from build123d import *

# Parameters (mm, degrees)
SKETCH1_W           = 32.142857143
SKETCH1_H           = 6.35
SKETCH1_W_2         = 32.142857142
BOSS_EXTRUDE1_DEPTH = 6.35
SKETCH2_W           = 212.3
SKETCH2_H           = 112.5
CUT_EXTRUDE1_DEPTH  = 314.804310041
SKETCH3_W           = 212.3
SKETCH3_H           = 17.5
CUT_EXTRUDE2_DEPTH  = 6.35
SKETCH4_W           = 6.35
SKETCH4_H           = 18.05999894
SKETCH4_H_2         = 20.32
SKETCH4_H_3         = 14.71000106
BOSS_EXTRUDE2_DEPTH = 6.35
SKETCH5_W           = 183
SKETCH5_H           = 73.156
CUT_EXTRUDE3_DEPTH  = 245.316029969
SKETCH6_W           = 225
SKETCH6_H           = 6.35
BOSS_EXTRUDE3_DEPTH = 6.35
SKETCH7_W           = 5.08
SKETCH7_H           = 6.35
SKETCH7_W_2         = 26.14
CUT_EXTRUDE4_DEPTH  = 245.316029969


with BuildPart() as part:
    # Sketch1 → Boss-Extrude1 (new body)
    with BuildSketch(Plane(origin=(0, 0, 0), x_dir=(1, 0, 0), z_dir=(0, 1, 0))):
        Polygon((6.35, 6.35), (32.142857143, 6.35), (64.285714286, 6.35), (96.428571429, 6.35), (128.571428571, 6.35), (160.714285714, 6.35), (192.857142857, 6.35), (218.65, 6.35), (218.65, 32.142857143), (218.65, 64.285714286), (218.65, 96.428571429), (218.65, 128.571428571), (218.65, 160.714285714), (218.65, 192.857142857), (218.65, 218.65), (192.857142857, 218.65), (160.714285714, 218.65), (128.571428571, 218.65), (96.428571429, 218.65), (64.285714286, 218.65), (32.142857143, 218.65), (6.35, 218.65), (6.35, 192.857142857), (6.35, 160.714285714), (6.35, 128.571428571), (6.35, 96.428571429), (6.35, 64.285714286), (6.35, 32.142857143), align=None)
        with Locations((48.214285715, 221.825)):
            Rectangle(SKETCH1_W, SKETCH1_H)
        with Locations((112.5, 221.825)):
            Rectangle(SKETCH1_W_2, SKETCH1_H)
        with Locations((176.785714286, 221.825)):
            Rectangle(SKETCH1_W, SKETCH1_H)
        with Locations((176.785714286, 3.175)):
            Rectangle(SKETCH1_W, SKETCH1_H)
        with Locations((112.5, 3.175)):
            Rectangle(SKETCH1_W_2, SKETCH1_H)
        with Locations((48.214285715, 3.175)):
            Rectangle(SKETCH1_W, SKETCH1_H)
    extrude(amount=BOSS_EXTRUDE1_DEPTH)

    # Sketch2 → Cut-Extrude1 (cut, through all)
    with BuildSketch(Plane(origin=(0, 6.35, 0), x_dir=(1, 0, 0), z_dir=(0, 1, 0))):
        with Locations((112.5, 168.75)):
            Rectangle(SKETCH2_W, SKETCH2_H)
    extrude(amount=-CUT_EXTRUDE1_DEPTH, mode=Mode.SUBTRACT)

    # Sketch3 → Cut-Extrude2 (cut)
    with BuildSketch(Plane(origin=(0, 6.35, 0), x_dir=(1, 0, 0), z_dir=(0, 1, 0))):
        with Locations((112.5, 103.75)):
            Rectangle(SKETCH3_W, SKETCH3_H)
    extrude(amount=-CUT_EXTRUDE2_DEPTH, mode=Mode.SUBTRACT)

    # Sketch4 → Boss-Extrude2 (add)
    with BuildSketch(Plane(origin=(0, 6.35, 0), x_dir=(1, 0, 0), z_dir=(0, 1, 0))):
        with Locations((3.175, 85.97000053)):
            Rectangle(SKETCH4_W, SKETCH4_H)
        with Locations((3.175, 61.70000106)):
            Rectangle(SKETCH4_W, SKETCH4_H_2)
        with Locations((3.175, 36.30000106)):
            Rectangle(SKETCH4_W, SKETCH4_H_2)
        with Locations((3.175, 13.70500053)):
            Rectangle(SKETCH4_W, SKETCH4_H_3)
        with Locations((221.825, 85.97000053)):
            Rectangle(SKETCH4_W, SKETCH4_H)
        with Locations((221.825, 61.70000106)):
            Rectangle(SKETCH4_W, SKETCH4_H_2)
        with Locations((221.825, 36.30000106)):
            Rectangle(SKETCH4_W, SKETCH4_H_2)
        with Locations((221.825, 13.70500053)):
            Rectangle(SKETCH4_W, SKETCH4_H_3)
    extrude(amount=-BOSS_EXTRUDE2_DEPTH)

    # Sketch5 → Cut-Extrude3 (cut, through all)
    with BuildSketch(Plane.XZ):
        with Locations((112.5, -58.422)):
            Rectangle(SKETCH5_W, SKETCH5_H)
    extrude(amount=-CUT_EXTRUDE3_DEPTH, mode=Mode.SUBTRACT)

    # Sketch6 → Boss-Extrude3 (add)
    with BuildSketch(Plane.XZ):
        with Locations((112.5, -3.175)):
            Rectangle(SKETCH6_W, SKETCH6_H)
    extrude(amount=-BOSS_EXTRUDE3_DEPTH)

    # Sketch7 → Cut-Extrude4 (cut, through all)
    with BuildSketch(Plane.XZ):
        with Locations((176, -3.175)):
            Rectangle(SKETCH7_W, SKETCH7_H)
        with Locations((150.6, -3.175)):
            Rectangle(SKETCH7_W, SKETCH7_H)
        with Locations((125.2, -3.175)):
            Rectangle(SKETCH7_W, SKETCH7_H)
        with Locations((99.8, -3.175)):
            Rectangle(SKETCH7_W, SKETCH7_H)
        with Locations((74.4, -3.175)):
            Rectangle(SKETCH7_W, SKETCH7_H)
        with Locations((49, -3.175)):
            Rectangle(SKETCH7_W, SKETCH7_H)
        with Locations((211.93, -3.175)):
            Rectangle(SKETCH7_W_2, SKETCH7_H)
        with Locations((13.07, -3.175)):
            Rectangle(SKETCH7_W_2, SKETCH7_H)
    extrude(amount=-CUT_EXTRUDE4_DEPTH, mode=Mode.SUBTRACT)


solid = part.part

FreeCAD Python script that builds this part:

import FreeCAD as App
import Part
import Sketcher
from FreeCAD import Vector


def add_polygon(sketch, points):
    """Adds a closed chain of lines whose ends are joined by coincident constraints."""
    first, n = sketch.GeometryCount, len(points)
    for a, b in zip(points, points[1:] + points[:1]):
        sketch.addGeometry(Part.LineSegment(App.Vector(*a, 0), App.Vector(*b, 0)), False)
    for i in range(n):
        sketch.addConstraint(Sketcher.Constraint("Coincident", first + i, 2, first + (i + 1) % n, 1))

doc = App.newDocument("Part")
body = doc.addObject("PartDesign::Body", "Body")

# Sketch on XZ plane
sketch1 = doc.addObject("Sketcher::SketchObject", "Sketch")
body.addObject(sketch1)
sketch1.AttachmentSupport = (doc.XZ_Plane, [""])
sketch1.MapMode = "FlatFace"
add_polygon(sketch1, [(6, -6), (32, -6), (32, 0), (64, 0), (64, -6), (96, -6), (96, 0), (129, 0), (129, -6), (161, -6), (161, 0), (193, 0), (193, -6), (219, -6), (219, -219), (193, -219), (193, -225), (161, -225), (161, -219), (129, -219), (129, -225), (96, -225), (96, -219), (64, -219), (64, -225), (32, -225), (32, -219), (6, -219)])  # lines 0-27
sketch1.addConstraint([
    Sketcher.Constraint("Horizontal", 0),
    Sketcher.Constraint("Vertical", 1),
    Sketcher.Constraint("Horizontal", 2),
    Sketcher.Constraint("Vertical", 3),
    Sketcher.Constraint("Horizontal", 4),
    Sketcher.Constraint("Vertical", 5),
    Sketcher.Constraint("Horizontal", 6),
    Sketcher.Constraint("Vertical", 7),
    Sketcher.Constraint("Horizontal", 8),
    Sketcher.Constraint("Vertical", 9),
    Sketcher.Constraint("Horizontal", 10),
    Sketcher.Constraint("Vertical", 11),
    Sketcher.Constraint("Horizontal", 12),
    Sketcher.Constraint("Vertical", 13),
    Sketcher.Constraint("Horizontal", 14),
    Sketcher.Constraint("Vertical", 15),
    Sketcher.Constraint("Horizontal", 16),
    Sketcher.Constraint("Vertical", 17),
    Sketcher.Constraint("Horizontal", 18),
    Sketcher.Constraint("Vertical", 19),
    Sketcher.Constraint("Horizontal", 20),
    Sketcher.Constraint("Vertical", 21),
    Sketcher.Constraint("Horizontal", 22),
    Sketcher.Constraint("Vertical", 23),
    Sketcher.Constraint("Horizontal", 24),
    Sketcher.Constraint("Vertical", 25),
    Sketcher.Constraint("Horizontal", 26),
    Sketcher.Constraint("Vertical", 27),
    Sketcher.Constraint("PointOnObject", 1, 2, -1),
    Sketcher.Constraint("PointOnObject", 5, 2, -1),
    Sketcher.Constraint("PointOnObject", 9, 2, -1),
    Sketcher.Constraint("Horizontal", 0, 2, 3, 2),
    Sketcher.Constraint("Horizontal", 4, 2, 7, 2),
    Sketcher.Constraint("Horizontal", 8, 2, 11, 2),
    Sketcher.Constraint("Horizontal", 14, 2, 17, 2),
    Sketcher.Constraint("Horizontal", 16, 2, 19, 2),
    Sketcher.Constraint("Horizontal", 18, 2, 21, 2),
    Sketcher.Constraint("Horizontal", 20, 2, 23, 2),
    Sketcher.Constraint("Horizontal", 22, 2, 25, 2),
    Sketcher.Constraint("Vertical", 11, 2, 14, 2),
    Sketcher.Constraint("Vertical", 9, 2, 16, 2),
    Sketcher.Constraint("Vertical", 7, 2, 18, 2),
    Sketcher.Constraint("Vertical", 5, 2, 20, 2),
    Sketcher.Constraint("Vertical", 3, 2, 22, 2),
    Sketcher.Constraint("Vertical", 1, 2, 24, 2),
    Sketcher.Constraint("Equal", 2, 4),
    Sketcher.Constraint("Equal", 4, 6),
    Sketcher.Constraint("Equal", 6, 8),
    Sketcher.Constraint("Equal", 8, 10),
    Sketcher.Constraint("Equal", 0, 12),
    Sketcher.Constraint("Equal", 11, 15),
    Sketcher.Constraint("DistanceY", 13, 2, 13, 1, 212.3),
    Sketcher.Constraint("DistanceY", 15, 2, -1, 1, 225.0),
    Sketcher.Constraint("DistanceX", -1, 1, 12, 2, 218.65),
    Sketcher.Constraint("DistanceX", -1, 1, 26, 2, 6.35),
    Sketcher.Constraint("DistanceX", 0, 1, 0, 2, 25.792857),
])
pad1 = doc.addObject("PartDesign::Pad", "Pad")
body.addObject(pad1)
pad1.Profile = sketch1
pad1.Length = 6.35
pad1.Reversed = True

# Sketch on XZ plane
sketch2 = doc.addObject("Sketcher::SketchObject", "Sketch001")
body.addObject(sketch2)
sketch2.AttachmentSupport = (doc.XZ_Plane, [""])
sketch2.MapMode = "FlatFace"
sketch2.AttachmentOffset = App.Placement(Vector(0, 0, -6.35), App.Rotation())
add_polygon(sketch2, [(6, -225), (6, -112), (219, -112), (219, -225)])  # lines 0-3
sketch2.addConstraint([
    Sketcher.Constraint("Vertical", 0),
    Sketcher.Constraint("Horizontal", 1),
    Sketcher.Constraint("Vertical", 2),
    Sketcher.Constraint("Horizontal", 3),
    Sketcher.Constraint("DistanceX", 1, 1, 1, 2, 212.3),
    Sketcher.Constraint("DistanceY", 0, 1, 0, 2, 112.5),
    Sketcher.Constraint("DistanceY", 2, 2, -1, 1, 225.0),
    Sketcher.Constraint("DistanceX", -1, 1, 0, 2, 6.35),
])
pocket1 = doc.addObject("PartDesign::Pocket", "Pocket")
body.addObject(pocket1)
pocket1.Profile = sketch2
pocket1.Type = "ThroughAll"
pocket1.Reversed = True

# Sketch on XZ plane
sketch3 = doc.addObject("Sketcher::SketchObject", "Sketch002")
body.addObject(sketch3)
sketch3.AttachmentSupport = (doc.XZ_Plane, [""])
sketch3.MapMode = "FlatFace"
sketch3.AttachmentOffset = App.Placement(Vector(0, 0, -6.35), App.Rotation())
add_polygon(sketch3, [(6, -112), (6, -95), (219, -95), (219, -112)])  # lines 0-3
sketch3.addConstraint([
    Sketcher.Constraint("Vertical", 0),
    Sketcher.Constraint("Horizontal", 1),
    Sketcher.Constraint("Vertical", 2),
    Sketcher.Constraint("Horizontal", 3),
    Sketcher.Constraint("DistanceX", 1, 1, 1, 2, 212.3),
    Sketcher.Constraint("DistanceY", 0, 1, 0, 2, 17.5),
    Sketcher.Constraint("DistanceY", 0, 2, -1, 1, 95.0),
    Sketcher.Constraint("DistanceX", -1, 1, 0, 2, 6.35),
])
pocket2 = doc.addObject("PartDesign::Pocket", "Pocket001")
body.addObject(pocket2)
pocket2.Profile = sketch3
pocket2.Length = 6.35
pocket2.Reversed = True

# Sketch on XZ plane
sketch4 = doc.addObject("Sketcher::SketchObject", "Sketch003")
body.addObject(sketch4)
sketch4.AttachmentSupport = (doc.XZ_Plane, [""])
sketch4.MapMode = "FlatFace"
sketch4.AttachmentOffset = App.Placement(Vector(0, 0, -6.35), App.Rotation())
add_polygon(sketch4, [(0, -95), (0, -77), (6, -77), (6, -95)])  # lines 0-3
add_polygon(sketch4, [(0, -72), (0, -52), (6, -52), (6, -72)])  # lines 4-7
add_polygon(sketch4, [(0, -46), (0, -26), (6, -26), (6, -46)])  # lines 8-11
add_polygon(sketch4, [(0, -21), (0, -6), (6, -6), (6, -21)])  # lines 12-15
add_polygon(sketch4, [(219, -95), (219, -77), (225, -77), (225, -95)])  # lines 16-19
add_polygon(sketch4, [(219, -72), (219, -52), (225, -52), (225, -72)])  # lines 20-23
add_polygon(sketch4, [(219, -46), (219, -26), (225, -26), (225, -46)])  # lines 24-27
add_polygon(sketch4, [(219, -21), (219, -6), (225, -6), (225, -21)])  # lines 28-31
sketch4.addConstraint([
    Sketcher.Constraint("Vertical", 0),
    Sketcher.Constraint("Horizontal", 1),
    Sketcher.Constraint("Vertical", 2),
    Sketcher.Constraint("Horizontal", 3),
    Sketcher.Constraint("Vertical", 4),
    Sketcher.Constraint("Horizontal", 5),
    Sketcher.Constraint("Vertical", 6),
    Sketcher.Constraint("Horizontal", 7),
    Sketcher.Constraint("Vertical", 8),
    Sketcher.Constraint("Horizontal", 9),
    Sketcher.Constraint("Vertical", 10),
    Sketcher.Constraint("Horizontal", 11),
    Sketcher.Constraint("Vertical", 12),
    Sketcher.Constraint("Horizontal", 13),
    Sketcher.Constraint("Vertical", 14),
    Sketcher.Constraint("Horizontal", 15),
    Sketcher.Constraint("Vertical", 16),
    Sketcher.Constraint("Horizontal", 17),
    Sketcher.Constraint("Vertical", 18),
    Sketcher.Constraint("Horizontal", 19),
    Sketcher.Constraint("Vertical", 20),
    Sketcher.Constraint("Horizontal", 21),
    Sketcher.Constraint("Vertical", 22),
    Sketcher.Constraint("Horizontal", 23),
    Sketcher.Constraint("Vertical", 24),
    Sketcher.Constraint("Horizontal", 25),
    Sketcher.Constraint("Vertical", 26),
    Sketcher.Constraint("Horizontal", 27),
    Sketcher.Constraint("Vertical", 28),
    Sketcher.Constraint("Horizontal", 29),
    Sketcher.Constraint("Vertical", 30),
    Sketcher.Constraint("Horizontal", 31),
    Sketcher.Constraint("PointOnObject", 0, 2, -2),
    Sketcher.Constraint("PointOnObject", 4, 2, -2),
    Sketcher.Constraint("PointOnObject", 8, 2, -2),
    Sketcher.Constraint("PointOnObject", 12, 2, -2),
    Sketcher.Constraint("Horizontal", 1, 2, 16, 2),
    Sketcher.Constraint("Horizontal", 3, 2, 18, 2),
    Sketcher.Constraint("Horizontal", 5, 2, 20, 2),
    Sketcher.Constraint("Horizontal", 7, 2, 22, 2),
    Sketcher.Constraint("Horizontal", 9, 2, 24, 2),
    Sketcher.Constraint("Horizontal", 11, 2, 26, 2),
    Sketcher.Constraint("Horizontal", 13, 2, 28, 2),
    Sketcher.Constraint("Horizontal", 15, 2, 30, 2),
    Sketcher.Constraint("Vertical", 2, 2, 5, 2),
    Sketcher.Constraint("Vertical", 6, 2, 9, 2),
    Sketcher.Constraint("Vertical", 10, 2, 13, 2),
    Sketcher.Constraint("Vertical", 19, 2, 20, 2),
    Sketcher.Constraint("Vertical", 18, 2, 21, 2),
    Sketcher.Constraint("Vertical", 23, 2, 24, 2),
    Sketcher.Constraint("Vertical", 22, 2, 25, 2),
    Sketcher.Constraint("Vertical", 27, 2, 28, 2),
    Sketcher.Constraint("Vertical", 26, 2, 29, 2),
    Sketcher.Constraint("Equal", 15, 17),
    Sketcher.Constraint("Equal", 6, 8),
    Sketcher.Constraint("DistanceY", 2, 2, -1, 1, 95.0),
    Sketcher.Constraint("DistanceX", -1, 1, 17, 2, 225.0),
    Sketcher.Constraint("DistanceX", 1, 1, 1, 2, 6.35),
    Sketcher.Constraint("DistanceY", 0, 1, 0, 2, 18.059999),
    Sketcher.Constraint("DistanceY", 4, 1, 4, 2, 20.32),
    Sketcher.Constraint("DistanceY", 12, 1, 12, 2, 14.710001),
    Sketcher.Constraint("DistanceY", 0, 2, 4, 2, 25.4),
    Sketcher.Constraint("DistanceY", 4, 2, 8, 2, 25.4),
    Sketcher.Constraint("DistanceY", 10, 2, 14, 2, 25.4),
])
pad2 = doc.addObject("PartDesign::Pad", "Pad001")
body.addObject(pad2)
pad2.Profile = sketch4
pad2.Length = 6.35

# Sketch on XZ plane
sketch5 = doc.addObject("Sketcher::SketchObject", "Sketch004")
body.addObject(sketch5)
sketch5.AttachmentSupport = (doc.XZ_Plane, [""])
sketch5.MapMode = "FlatFace"
add_polygon(sketch5, [(21, -22), (21, -95), (204, -95), (204, -22)])  # lines 0-3
sketch5.addConstraint([
    Sketcher.Constraint("Vertical", 0),
    Sketcher.Constraint("Horizontal", 1),
    Sketcher.Constraint("Vertical", 2),
    Sketcher.Constraint("Horizontal", 3),
    Sketcher.Constraint("DistanceX", 1, 1, 1, 2, 183.0),
    Sketcher.Constraint("DistanceX", -1, 1, 0, 2, 21.0),
    Sketcher.Constraint("DistanceY", 0, 2, -1, 1, 95.0),
    Sketcher.Constraint("DistanceY", 0, 2, 0, 1, 73.156),
])
pocket3 = doc.addObject("PartDesign::Pocket", "Pocket002")
body.addObject(pocket3)
pocket3.Profile = sketch5
pocket3.Type = "ThroughAll"

# Sketch on XZ plane
sketch6 = doc.addObject("Sketcher::SketchObject", "Sketch005")
body.addObject(sketch6)
sketch6.AttachmentSupport = (doc.XZ_Plane, [""])
sketch6.MapMode = "FlatFace"
add_polygon(sketch6, [(0, 0), (0, -6), (225, -6), (225, 0)])  # lines 0-3
sketch6.addConstraint([
    Sketcher.Constraint("Vertical", 0),
    Sketcher.Constraint("Horizontal", 1),
    Sketcher.Constraint("Vertical", 2),
    Sketcher.Constraint("Horizontal", 3),
    Sketcher.Constraint("Coincident", 3, 2, -1, 1),
    Sketcher.Constraint("DistanceX", 1, 1, 1, 2, 225.0),
    Sketcher.Constraint("DistanceY", 0, 2, 0, 1, 6.35),
])
pad3 = doc.addObject("PartDesign::Pad", "Pad002")
body.addObject(pad3)
pad3.Profile = sketch6
pad3.Length = 6.35
pad3.Reversed = True

# Sketch on XZ plane
sketch7 = doc.addObject("Sketcher::SketchObject", "Sketch006")
body.addObject(sketch7)
sketch7.AttachmentSupport = (doc.XZ_Plane, [""])
sketch7.MapMode = "FlatFace"
add_polygon(sketch7, [(173, 0), (173, -6), (179, -6), (179, 0)])  # lines 0-3
add_polygon(sketch7, [(148, 0), (148, -6), (153, -6), (153, 0)])  # lines 4-7
add_polygon(sketch7, [(123, 0), (123, -6), (128, -6), (128, 0)])  # lines 8-11
add_polygon(sketch7, [(97, 0), (97, -6), (102, -6), (102, 0)])  # lines 12-15
add_polygon(sketch7, [(72, 0), (72, -6), (77, -6), (77, 0)])  # lines 16-19
add_polygon(sketch7, [(46, 0), (46, -6), (52, -6), (52, 0)])  # lines 20-23
add_polygon(sketch7, [(199, 0), (199, -6), (225, -6), (225, 0)])  # lines 24-27
add_polygon(sketch7, [(0, 0), (0, -6), (26, -6), (26, 0)])  # lines 28-31
sketch7.addConstraint([
    Sketcher.Constraint("Vertical", 0),
    Sketcher.Constraint("Horizontal", 1),
    Sketcher.Constraint("Vertical", 2),
    Sketcher.Constraint("Horizontal", 3),
    Sketcher.Constraint("Vertical", 4),
    Sketcher.Constraint("Horizontal", 5),
    Sketcher.Constraint("Vertical", 6),
    Sketcher.Constraint("Horizontal", 7),
    Sketcher.Constraint("Vertical", 8),
    Sketcher.Constraint("Horizontal", 9),
    Sketcher.Constraint("Vertical", 10),
    Sketcher.Constraint("Horizontal", 11),
    Sketcher.Constraint("Vertical", 12),
    Sketcher.Constraint("Horizontal", 13),
    Sketcher.Constraint("Vertical", 14),
    Sketcher.Constraint("Horizontal", 15),
    Sketcher.Constraint("Vertical", 16),
    Sketcher.Constraint("Horizontal", 17),
    Sketcher.Constraint("Vertical", 18),
    Sketcher.Constraint("Horizontal", 19),
    Sketcher.Constraint("Vertical", 20),
    Sketcher.Constraint("Horizontal", 21),
    Sketcher.Constraint("Vertical", 22),
    Sketcher.Constraint("Horizontal", 23),
    Sketcher.Constraint("Vertical", 24),
    Sketcher.Constraint("Horizontal", 25),
    Sketcher.Constraint("Vertical", 26),
    Sketcher.Constraint("Horizontal", 27),
    Sketcher.Constraint("Vertical", 28),
    Sketcher.Constraint("Horizontal", 29),
    Sketcher.Constraint("Vertical", 30),
    Sketcher.Constraint("Horizontal", 31),
    Sketcher.Constraint("Coincident", 31, 2, -1, 1),
    Sketcher.Constraint("PointOnObject", 2, 2, -1),
    Sketcher.Constraint("PointOnObject", 6, 2, -1),
    Sketcher.Constraint("PointOnObject", 10, 2, -1),
    Sketcher.Constraint("PointOnObject", 14, 2, -1),
    Sketcher.Constraint("PointOnObject", 18, 2, -1),
    Sketcher.Constraint("PointOnObject", 22, 2, -1),
    Sketcher.Constraint("PointOnObject", 26, 2, -1),
    Sketcher.Constraint("Horizontal", 1, 2, 4, 2),
    Sketcher.Constraint("Horizontal", 5, 2, 8, 2),
    Sketcher.Constraint("Horizontal", 9, 2, 12, 2),
    Sketcher.Constraint("Horizontal", 13, 2, 16, 2),
    Sketcher.Constraint("Horizontal", 17, 2, 20, 2),
    Sketcher.Constraint("Horizontal", 21, 2, 24, 2),
    Sketcher.Constraint("Horizontal", 25, 2, 28, 2),
    Sketcher.Constraint("Equal", 3, 5),
    Sketcher.Constraint("Equal", 7, 9),
    Sketcher.Constraint("Equal", 11, 13),
    Sketcher.Constraint("Equal", 15, 17),
    Sketcher.Constraint("Equal", 19, 21),
    Sketcher.Constraint("Equal", 27, 29),
    Sketcher.Constraint("DistanceX", -1, 1, 25, 2, 225.0),
    Sketcher.Constraint("DistanceX", 1, 1, 1, 2, 5.08),
    Sketcher.Constraint("DistanceX", 25, 1, 25, 2, 26.14),
    Sketcher.Constraint("DistanceY", 0, 2, 0, 1, 6.35),
    Sketcher.Constraint("DistanceX", 4, 2, 0, 2, 25.4),
    Sketcher.Constraint("DistanceX", 8, 2, 4, 2, 25.4),
    Sketcher.Constraint("DistanceX", 12, 2, 8, 2, 25.4),
    Sketcher.Constraint("DistanceX", 16, 2, 12, 2, 25.4),
    Sketcher.Constraint("DistanceX", 20, 2, 16, 2, 25.4),
    Sketcher.Constraint("DistanceX", 0, 2, 24, 2, 25.4),
])
pocket4 = doc.addObject("PartDesign::Pocket", "Pocket003")
body.addObject(pocket4)
pocket4.Profile = sketch7
pocket4.Type = "ThroughAll"

doc.recompute()
